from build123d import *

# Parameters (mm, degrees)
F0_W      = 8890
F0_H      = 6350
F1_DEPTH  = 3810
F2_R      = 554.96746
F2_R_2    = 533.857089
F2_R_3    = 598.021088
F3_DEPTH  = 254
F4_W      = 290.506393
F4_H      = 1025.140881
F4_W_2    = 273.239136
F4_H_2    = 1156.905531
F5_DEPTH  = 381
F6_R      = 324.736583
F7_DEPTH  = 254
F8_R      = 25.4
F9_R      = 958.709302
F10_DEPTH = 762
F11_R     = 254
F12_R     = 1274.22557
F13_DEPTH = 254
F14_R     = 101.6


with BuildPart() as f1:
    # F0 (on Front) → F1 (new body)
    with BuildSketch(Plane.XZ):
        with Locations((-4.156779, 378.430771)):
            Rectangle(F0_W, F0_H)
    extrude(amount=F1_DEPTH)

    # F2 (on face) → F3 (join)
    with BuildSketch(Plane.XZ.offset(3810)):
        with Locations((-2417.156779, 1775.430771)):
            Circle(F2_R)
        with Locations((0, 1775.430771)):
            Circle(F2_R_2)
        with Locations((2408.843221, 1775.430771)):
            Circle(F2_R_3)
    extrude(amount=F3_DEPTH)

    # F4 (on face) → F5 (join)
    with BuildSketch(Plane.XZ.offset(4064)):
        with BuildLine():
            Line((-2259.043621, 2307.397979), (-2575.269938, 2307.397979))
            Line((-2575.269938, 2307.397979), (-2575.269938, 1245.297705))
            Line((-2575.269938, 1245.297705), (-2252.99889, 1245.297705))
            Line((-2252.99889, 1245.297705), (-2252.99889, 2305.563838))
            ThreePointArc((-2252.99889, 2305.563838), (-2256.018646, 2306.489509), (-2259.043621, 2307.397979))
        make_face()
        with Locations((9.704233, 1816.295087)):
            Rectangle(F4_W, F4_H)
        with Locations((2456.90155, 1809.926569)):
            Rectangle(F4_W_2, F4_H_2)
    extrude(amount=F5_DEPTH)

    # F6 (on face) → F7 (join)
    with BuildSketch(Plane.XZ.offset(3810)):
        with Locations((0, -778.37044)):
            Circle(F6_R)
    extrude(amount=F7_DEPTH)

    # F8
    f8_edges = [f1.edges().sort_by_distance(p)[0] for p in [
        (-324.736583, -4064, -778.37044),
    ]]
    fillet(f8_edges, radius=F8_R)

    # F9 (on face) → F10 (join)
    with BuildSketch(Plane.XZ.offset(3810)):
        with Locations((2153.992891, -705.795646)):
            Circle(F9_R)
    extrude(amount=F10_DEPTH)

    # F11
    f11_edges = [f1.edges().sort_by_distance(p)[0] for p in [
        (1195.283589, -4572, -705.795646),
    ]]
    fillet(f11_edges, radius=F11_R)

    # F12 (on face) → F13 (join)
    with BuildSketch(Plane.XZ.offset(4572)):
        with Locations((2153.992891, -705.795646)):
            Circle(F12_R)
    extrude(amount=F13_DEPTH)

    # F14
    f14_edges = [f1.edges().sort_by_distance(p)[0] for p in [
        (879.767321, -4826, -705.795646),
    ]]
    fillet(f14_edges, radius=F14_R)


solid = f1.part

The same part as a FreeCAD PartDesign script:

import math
import FreeCAD as App
import Part
import Sketcher
Q = App.Units.Quantity


def edges_at(feature, points):
    """Names of the edges that pass closest to the given points."""
    edges = feature.Shape.Edges
    near = lambda p: min(range(len(edges)), key=lambda i: edges[i].distToShape(Part.Vertex(*p))[0])
    return sorted({f"Edge{near(p) + 1}" for p in points})

doc = App.newDocument("Part")
body = doc.addObject("PartDesign::Body", "Body")

sketch1 = body.newObject("Sketcher::SketchObject", "Sketch")
sketch1.AttachmentSupport = (doc.getObject("XZ_Plane"), [""])
sketch1.MapMode = "FlatFace"
sketch1.addGeometry([
    Part.LineSegment(App.Vector(-4449.156779, 3553.430771, 0), App.Vector(-4449.156779, -2796.569229, 0)),
    Part.LineSegment(App.Vector(-4449.156779, -2796.569229, 0), App.Vector(4440.843221, -2796.569229, 0)),
    Part.LineSegment(App.Vector(4440.843221, -2796.569229, 0), App.Vector(4440.843221, 3553.430771, 0)),
    Part.LineSegment(App.Vector(4440.843221, 3553.430771, 0), App.Vector(-4449.156779, 3553.430771, 0)),
], False)
sketch1.addConstraint([
    Sketcher.Constraint("Coincident", 0, 2, 1, 1),
    Sketcher.Constraint("Coincident", 1, 2, 2, 1),
    Sketcher.Constraint("Coincident", 2, 2, 3, 1),
    Sketcher.Constraint("Coincident", 3, 2, 0, 1),
    Sketcher.Constraint("Vertical", 0),
    Sketcher.Constraint("Horizontal", 1),
    Sketcher.Constraint("Vertical", 2),
    Sketcher.Constraint("Horizontal", 3),
    Sketcher.Constraint("DistanceX", 1, 1, 1, 2, Q("350 in")),
    Sketcher.Constraint("DistanceY", 0, 2, 0, 1, Q("250 in")),
    Sketcher.Constraint("DistanceX", 0, 2, -1, 1, 4449.156779),
    Sketcher.Constraint("DistanceY", 0, 2, -1, 1, 2796.569229),
])
pad1 = body.newObject("PartDesign::Pad", "Pad")
pad1.Profile = sketch1
pad1.Length = Q("150 in")

sketch2 = body.newObject("Sketcher::SketchObject", "Sketch001")
sketch2.AttachmentSupport = (doc.getObject("XZ_Plane"), [""])
sketch2.MapMode = "FlatFace"
sketch2.AttachmentOffset = App.Placement(App.Vector(0, 0, 150 * 25.4), App.Rotation())
sketch2.addGeometry([
    Part.Circle(App.Vector(-2417.156779, 1775.430771, 0), App.Vector(0, 0, 1), 554.96746),
    Part.Circle(App.Vector(0, 1775.430771, 0), App.Vector(0, 0, 1), 533.857089),
    Part.Circle(App.Vector(2408.843221, 1775.430771, 0), App.Vector(0, 0, 1), 598.021088),
], False)
sketch2.addConstraint([
    Sketcher.Constraint("PointOnObject", 1, 3, -2),
    Sketcher.Constraint("Horizontal", 0, 3, 1, 3),
    Sketcher.Constraint("Horizontal", 1, 3, 2, 3),
    Sketcher.Constraint("DistanceX", 0, 3, 2, 3, Q("190 in")),
    Sketcher.Constraint("Diameter", 0, 1109.93492),
    Sketcher.Constraint("Diameter", 1, 1067.714178),
    Sketcher.Constraint("Diameter", 2, 1196.042176),
    Sketcher.Constraint("DistanceX", 0, 3, -1, 1, 2417.156779),
    Sketcher.Constraint("DistanceY", -1, 1, 0, 3, 1775.430771),
])
pad2 = body.newObject("PartDesign::Pad", "Pad001")
pad2.Profile = sketch2
pad2.Length = Q("10 in")

sketch3 = body.newObject("Sketcher::SketchObject", "Sketch002")
sketch3.AttachmentSupport = (doc.getObject("XZ_Plane"), [""])
sketch3.MapMode = "FlatFace"
sketch3.AttachmentOffset = App.Placement(App.Vector(0, 0, 160 * 25.4), App.Rotation())
sketch3.addGeometry([
    Part.LineSegment(App.Vector(-2259.043621, 2307.397979, 0), App.Vector(-2575.269938, 2307.397979, 0)),
    Part.LineSegment(App.Vector(-2575.269938, 2307.397979, 0), App.Vector(-2575.269938, 1245.297705, 0)),
    Part.LineSegment(App.Vector(-2575.269938, 1245.297705, 0), App.Vector(-2252.99889, 1245.297705, 0)),
    Part.LineSegment(App.Vector(-2252.99889, 1245.297705, 0), App.Vector(-2252.99889, 2305.563838, 0)),
    Part.ArcOfCircle(Part.Circle(App.Vector(-2417.157917, 1775.426987, 0), App.Vector(0, 0, 1), 554.971411), math.radians(72.794649), math.radians(73.446812)),
    Part.LineSegment(App.Vector(-135.548964, 2328.865528, 0), App.Vector(-135.548964, 1303.724647, 0)),
    Part.LineSegment(App.Vector(-135.548964, 1303.724647, 0), App.Vector(154.957429, 1303.724647, 0)),
    Part.LineSegment(App.Vector(154.957429, 1303.724647, 0), App.Vector(154.957429, 2328.865528, 0)),
    Part.LineSegment(App.Vector(154.957429, 2328.865528, 0), App.Vector(-135.548964, 2328.865528, 0)),
    Part.LineSegment(App.Vector(2320.281982, 2388.379334, 0), App.Vector(2320.281982, 1231.473804, 0)),
    Part.LineSegment(App.Vector(2320.281982, 1231.473804, 0), App.Vector(2593.521118, 1231.473804, 0)),
    Part.LineSegment(App.Vector(2593.521118, 1231.473804, 0), App.Vector(2593.521118, 2388.379334, 0)),
    Part.LineSegment(App.Vector(2593.521118, 2388.379334, 0), App.Vector(2320.281982, 2388.379334, 0)),
], False)
sketch3.addConstraint([
    Sketcher.Constraint("Coincident", 0, 2, 1, 1),
    Sketcher.Constraint("Coincident", 1, 2, 2, 1),
    Sketcher.Constraint("Coincident", 2, 2, 3, 1),
    Sketcher.Constraint("Coincident", 3, 2, 4, 1),
    Sketcher.Constraint("Coincident", 4, 2, 0, 1),
    Sketcher.Constraint("Coincident", 5, 2, 6, 1),
    Sketcher.Constraint("Coincident", 6, 2, 7, 1),
    Sketcher.Constraint("Coincident", 7, 2, 8, 1),
    Sketcher.Constraint("Coincident", 8, 2, 5, 1),
    Sketcher.Constraint("Coincident", 9, 2, 10, 1),
    Sketcher.Constraint("Coincident", 10, 2, 11, 1),
    Sketcher.Constraint("Coincident", 11, 2, 12, 1),
    Sketcher.Constraint("Coincident", 12, 2, 9, 1),
    Sketcher.Constraint("Horizontal", 0),
    Sketcher.Constraint("Vertical", 1),
    Sketcher.Constraint("Horizontal", 2),
    Sketcher.Constraint("Vertical", 3),
    Sketcher.Constraint("Vertical", 5),
    Sketcher.Constraint("Horizontal", 6),
    Sketcher.Constraint("Vertical", 7),
    Sketcher.Constraint("Horizontal", 8),
    Sketcher.Constraint("Vertical", 9),
    Sketcher.Constraint("Horizontal", 10),
    Sketcher.Constraint("Vertical", 11),
    Sketcher.Constraint("Horizontal", 12),
    Sketcher.Constraint("Radius", 4, 554.971411),
    Sketcher.Constraint("DistanceX", 2, 1, 2, 2, 322.271048),
    Sketcher.Constraint("DistanceY", 5, 2, 5, 1, 1025.140881),
    Sketcher.Constraint("DistanceY", 9, 2, 9, 1, 1156.905531),
    Sketcher.Constraint("DistanceY", 9, 2, 2, 2, 13.823901),
    Sketcher.Constraint("DistanceX", 0, 2, 0, 1, 316.226317),
    Sketcher.Constraint("DistanceX", 6, 1, 6, 2, 290.506393),
    Sketcher.Constraint("DistanceX", 10, 1, 10, 2, 273.239136),
    Sketcher.Constraint("DistanceY", 1, 2, 1, 1, 1062.100274),
    Sketcher.Constraint("DistanceY", 3, 1, 3, 2, 1060.266133),
    Sketcher.Constraint("DistanceY", -1, 1, 0, 2, 2307.397979),
    Sketcher.Constraint("DistanceX", 2, 2, -1, 1, 2252.99889),
    Sketcher.Constraint("DistanceX", -1, 1, 6, 2, 154.957429),
    Sketcher.Constraint("DistanceX", -1, 1, 9, 2, 2320.281982),
    Sketcher.Constraint("DistanceY", 2, 2, 5, 2, 58.426942),
])
pad3 = body.newObject("PartDesign::Pad", "Pad002")
pad3.Profile = sketch3
pad3.Length = Q("15 in")

sketch4 = body.newObject("Sketcher::SketchObject", "Sketch003")
sketch4.AttachmentSupport = (doc.getObject("XZ_Plane"), [""])
sketch4.MapMode = "FlatFace"
sketch4.AttachmentOffset = App.Placement(App.Vector(0, 0, 150 * 25.4), App.Rotation())
sketch4.addGeometry(Part.Circle(App.Vector(0, -778.37044, 0), App.Vector(0, 0, 1), 324.736583), False)
sketch4.addConstraint([
    Sketcher.Constraint("PointOnObject", 0, 3, -2),
    Sketcher.Constraint("Diameter", 0, 649.473166),
    Sketcher.Constraint("DistanceY", 0, 3, -1, 1, 778.37044),
])
pad4 = body.newObject("PartDesign::Pad", "Pad003")
pad4.Profile = sketch4
pad4.Length = Q("10 in")
doc.recompute()

fillet = body.newObject("PartDesign::Fillet", "Fillet")
fillet.Base = (pad4, edges_at(pad4, [(-324.737, -4064, -778.37)]))
fillet.Radius = Q("1 in")

sketch5 = body.newObject("Sketcher::SketchObject", "Sketch004")
sketch5.AttachmentSupport = (doc.getObject("XZ_Plane"), [""])
sketch5.MapMode = "FlatFace"
sketch5.AttachmentOffset = App.Placement(App.Vector(0, 0, 150 * 25.4), App.Rotation())
sketch5.addGeometry(Part.Circle(App.Vector(2153.992891, -705.795646, 0), App.Vector(0, 0, 1), 958.709302), False)
sketch5.addConstraint([
    Sketcher.Constraint("Diameter", 0, 1917.418604),
    Sketcher.Constraint("DistanceX", -1, 1, 0, 3, 2153.992891),
    Sketcher.Constraint("DistanceY", 0, 3, -1, 1, 705.795646),
])
pad5 = body.newObject("PartDesign::Pad", "Pad004")
pad5.Profile = sketch5
pad5.Length = Q("30 in")
doc.recompute()

fillet2 = body.newObject("PartDesign::Fillet", "Fillet001")
fillet2.Base = (pad5, edges_at(pad5, [(1195.284, -4572, -705.796)]))
fillet2.Radius = Q("10 in")

sketch6 = body.newObject("Sketcher::SketchObject", "Sketch005")
sketch6.AttachmentSupport = (doc.getObject("XZ_Plane"), [""])
sketch6.MapMode = "FlatFace"
sketch6.AttachmentOffset = App.Placement(App.Vector(0, 0, 180 * 25.4), App.Rotation())
sketch6.addGeometry(Part.Circle(App.Vector(2153.992891, -705.795646, 0), App.Vector(0, 0, 1), 1274.22557), False)
sketch6.addConstraint([
    Sketcher.Constraint("Diameter", 0, 2548.45114),
    Sketcher.Constraint("DistanceX", -1, 1, 0, 3, 2153.992891),
    Sketcher.Constraint("DistanceY", 0, 3, -1, 1, 705.795646),
])
pad6 = body.newObject("PartDesign::Pad", "Pad005")
pad6.Profile = sketch6
pad6.Length = Q("10 in")
doc.recompute()

fillet3 = body.newObject("PartDesign::Fillet", "Fillet002")
fillet3.Base = (pad6, edges_at(pad6, [(879.767, -4826, -705.796)]))
fillet3.Radius = Q("4 in")

doc.recompute()
